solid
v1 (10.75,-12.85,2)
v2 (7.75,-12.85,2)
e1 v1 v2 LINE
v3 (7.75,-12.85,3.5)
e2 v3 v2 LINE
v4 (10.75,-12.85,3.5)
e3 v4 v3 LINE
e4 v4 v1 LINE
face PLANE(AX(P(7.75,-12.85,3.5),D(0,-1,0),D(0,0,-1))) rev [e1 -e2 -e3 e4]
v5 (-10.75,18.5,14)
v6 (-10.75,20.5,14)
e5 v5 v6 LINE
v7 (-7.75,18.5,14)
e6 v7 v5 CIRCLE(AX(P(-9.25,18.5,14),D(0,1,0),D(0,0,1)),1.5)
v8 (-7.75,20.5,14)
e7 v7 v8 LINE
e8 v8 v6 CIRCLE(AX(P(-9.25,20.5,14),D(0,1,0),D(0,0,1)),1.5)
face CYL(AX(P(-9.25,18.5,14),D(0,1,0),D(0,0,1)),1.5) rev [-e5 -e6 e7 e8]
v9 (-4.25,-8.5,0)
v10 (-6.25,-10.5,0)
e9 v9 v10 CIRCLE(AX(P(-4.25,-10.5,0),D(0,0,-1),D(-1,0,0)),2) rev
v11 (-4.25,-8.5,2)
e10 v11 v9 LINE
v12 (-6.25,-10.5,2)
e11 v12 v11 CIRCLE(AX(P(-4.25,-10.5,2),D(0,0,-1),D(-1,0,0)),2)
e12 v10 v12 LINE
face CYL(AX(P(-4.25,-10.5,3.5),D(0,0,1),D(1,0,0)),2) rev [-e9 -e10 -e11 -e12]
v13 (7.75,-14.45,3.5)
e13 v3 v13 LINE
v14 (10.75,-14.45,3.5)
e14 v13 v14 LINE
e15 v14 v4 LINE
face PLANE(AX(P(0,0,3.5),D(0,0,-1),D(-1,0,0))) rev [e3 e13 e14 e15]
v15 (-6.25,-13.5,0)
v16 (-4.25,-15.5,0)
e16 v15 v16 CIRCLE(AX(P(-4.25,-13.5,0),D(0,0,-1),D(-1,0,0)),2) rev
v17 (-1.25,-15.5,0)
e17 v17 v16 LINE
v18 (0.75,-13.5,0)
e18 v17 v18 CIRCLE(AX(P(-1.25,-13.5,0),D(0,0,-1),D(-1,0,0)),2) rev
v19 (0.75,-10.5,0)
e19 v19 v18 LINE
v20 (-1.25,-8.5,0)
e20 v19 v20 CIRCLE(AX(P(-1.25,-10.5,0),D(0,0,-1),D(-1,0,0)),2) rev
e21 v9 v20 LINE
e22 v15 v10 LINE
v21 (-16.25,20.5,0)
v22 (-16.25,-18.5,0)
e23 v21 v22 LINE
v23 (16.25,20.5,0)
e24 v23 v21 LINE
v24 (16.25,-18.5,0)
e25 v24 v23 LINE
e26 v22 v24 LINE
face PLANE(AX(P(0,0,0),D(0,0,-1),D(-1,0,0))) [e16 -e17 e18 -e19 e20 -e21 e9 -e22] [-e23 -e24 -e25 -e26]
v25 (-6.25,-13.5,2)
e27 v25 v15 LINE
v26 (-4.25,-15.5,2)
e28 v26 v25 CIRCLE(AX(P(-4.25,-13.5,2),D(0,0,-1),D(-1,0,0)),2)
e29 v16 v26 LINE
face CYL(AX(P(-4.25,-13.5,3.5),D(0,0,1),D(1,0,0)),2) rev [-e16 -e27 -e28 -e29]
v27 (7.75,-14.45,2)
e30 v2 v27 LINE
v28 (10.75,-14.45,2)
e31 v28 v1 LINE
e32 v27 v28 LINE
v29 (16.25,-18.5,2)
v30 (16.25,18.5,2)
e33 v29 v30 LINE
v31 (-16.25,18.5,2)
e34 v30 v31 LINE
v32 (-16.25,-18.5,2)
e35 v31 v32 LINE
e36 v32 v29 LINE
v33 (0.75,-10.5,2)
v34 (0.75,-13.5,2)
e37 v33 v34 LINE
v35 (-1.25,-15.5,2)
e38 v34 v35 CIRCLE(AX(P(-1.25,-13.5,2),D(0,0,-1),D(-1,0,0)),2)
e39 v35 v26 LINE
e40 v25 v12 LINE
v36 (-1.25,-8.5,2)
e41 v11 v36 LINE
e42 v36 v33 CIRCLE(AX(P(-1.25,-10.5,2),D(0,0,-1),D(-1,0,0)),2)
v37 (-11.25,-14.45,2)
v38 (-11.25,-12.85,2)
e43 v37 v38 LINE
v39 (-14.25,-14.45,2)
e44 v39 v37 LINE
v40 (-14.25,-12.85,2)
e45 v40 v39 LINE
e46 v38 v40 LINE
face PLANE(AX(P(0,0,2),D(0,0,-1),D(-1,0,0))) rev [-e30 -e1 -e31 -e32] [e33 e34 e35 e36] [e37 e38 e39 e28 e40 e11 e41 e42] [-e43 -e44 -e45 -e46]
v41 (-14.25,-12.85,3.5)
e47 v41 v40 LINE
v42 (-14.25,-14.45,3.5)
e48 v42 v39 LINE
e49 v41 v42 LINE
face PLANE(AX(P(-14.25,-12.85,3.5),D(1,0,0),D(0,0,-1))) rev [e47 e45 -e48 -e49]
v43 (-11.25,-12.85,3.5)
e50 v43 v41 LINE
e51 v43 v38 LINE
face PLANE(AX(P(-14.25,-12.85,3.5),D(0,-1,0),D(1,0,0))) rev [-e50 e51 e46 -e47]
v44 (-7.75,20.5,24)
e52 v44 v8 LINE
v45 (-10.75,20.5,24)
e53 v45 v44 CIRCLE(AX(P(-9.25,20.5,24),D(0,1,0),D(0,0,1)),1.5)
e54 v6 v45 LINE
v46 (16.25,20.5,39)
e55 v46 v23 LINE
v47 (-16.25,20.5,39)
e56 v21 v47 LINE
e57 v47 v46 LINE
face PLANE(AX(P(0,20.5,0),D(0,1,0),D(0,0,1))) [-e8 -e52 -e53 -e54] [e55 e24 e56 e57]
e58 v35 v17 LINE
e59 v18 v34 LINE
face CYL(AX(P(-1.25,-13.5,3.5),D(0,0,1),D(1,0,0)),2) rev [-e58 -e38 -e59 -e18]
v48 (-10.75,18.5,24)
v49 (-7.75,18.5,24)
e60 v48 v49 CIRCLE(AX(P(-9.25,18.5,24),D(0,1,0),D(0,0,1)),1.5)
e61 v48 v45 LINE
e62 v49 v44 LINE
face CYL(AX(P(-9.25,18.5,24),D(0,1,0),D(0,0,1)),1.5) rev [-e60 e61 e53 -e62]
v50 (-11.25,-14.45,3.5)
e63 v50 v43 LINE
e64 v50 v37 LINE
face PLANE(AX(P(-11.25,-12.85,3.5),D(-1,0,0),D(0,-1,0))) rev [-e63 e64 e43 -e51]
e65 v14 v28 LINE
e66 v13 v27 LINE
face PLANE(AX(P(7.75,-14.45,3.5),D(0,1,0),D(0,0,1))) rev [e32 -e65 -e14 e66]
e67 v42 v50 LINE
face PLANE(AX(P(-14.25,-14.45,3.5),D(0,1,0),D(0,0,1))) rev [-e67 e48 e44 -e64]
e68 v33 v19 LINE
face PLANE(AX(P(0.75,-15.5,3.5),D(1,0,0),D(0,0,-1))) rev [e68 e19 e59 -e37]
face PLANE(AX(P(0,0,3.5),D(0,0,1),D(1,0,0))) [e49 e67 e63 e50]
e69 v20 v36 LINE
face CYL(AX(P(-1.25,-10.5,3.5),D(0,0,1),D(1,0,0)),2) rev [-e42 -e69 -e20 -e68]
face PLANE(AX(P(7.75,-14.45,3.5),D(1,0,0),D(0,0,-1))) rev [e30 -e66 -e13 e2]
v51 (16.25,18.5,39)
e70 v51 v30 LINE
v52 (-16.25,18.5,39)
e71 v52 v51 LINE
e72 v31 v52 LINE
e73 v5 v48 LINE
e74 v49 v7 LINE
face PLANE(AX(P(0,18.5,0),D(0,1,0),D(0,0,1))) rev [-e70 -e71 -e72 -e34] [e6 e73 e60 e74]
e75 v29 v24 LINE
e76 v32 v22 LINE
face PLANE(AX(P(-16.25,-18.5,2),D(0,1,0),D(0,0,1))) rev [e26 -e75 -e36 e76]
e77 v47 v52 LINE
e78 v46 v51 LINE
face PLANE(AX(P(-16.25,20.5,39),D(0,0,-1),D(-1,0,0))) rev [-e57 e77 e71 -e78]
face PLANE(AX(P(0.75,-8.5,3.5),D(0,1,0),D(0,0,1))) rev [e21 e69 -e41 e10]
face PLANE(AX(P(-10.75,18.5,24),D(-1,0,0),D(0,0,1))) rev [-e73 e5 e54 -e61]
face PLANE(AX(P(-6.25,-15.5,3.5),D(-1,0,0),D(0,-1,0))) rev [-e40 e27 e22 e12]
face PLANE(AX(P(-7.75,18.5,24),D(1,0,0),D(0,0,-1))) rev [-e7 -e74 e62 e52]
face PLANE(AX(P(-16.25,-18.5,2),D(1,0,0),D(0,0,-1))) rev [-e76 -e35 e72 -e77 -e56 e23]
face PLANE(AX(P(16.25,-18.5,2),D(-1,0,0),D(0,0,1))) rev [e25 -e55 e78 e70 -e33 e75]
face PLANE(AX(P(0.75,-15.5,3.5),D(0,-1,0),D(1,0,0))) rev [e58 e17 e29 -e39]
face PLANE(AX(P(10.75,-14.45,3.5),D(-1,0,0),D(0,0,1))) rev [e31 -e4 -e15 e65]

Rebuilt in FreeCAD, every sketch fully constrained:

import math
import FreeCAD as App
import Part
import Sketcher
from FreeCAD import Vector


def edges_at(feature, points):
    """Names of the edges that pass closest to the given points."""
    edges = feature.Shape.Edges
    near = lambda p: min(range(len(edges)), key=lambda i: edges[i].distToShape(Part.Vertex(*p))[0])
    return sorted({f"Edge{near(p) + 1}" for p in points})


def add_polygon(sketch, points):
    """Adds a closed chain of lines whose ends are joined by coincident constraints."""
    first, n = sketch.GeometryCount, len(points)
    for a, b in zip(points, points[1:] + points[:1]):
        sketch.addGeometry(Part.LineSegment(App.Vector(*a, 0), App.Vector(*b, 0)), False)
    for i in range(n):
        sketch.addConstraint(Sketcher.Constraint("Coincident", first + i, 2, first + (i + 1) % n, 1))

doc = App.newDocument("Part")
body = doc.addObject("PartDesign::Body", "Body")

sketch1 = body.newObject("Sketcher::SketchObject", "Sketch")
sketch1.AttachmentSupport = (doc.getObject("XY_Plane"), [""])
sketch1.MapMode = "FlatFace"
add_polygon(sketch1, [(-16, 18), (-16, -18), (16, -18), (16, 18)])
sketch1.addConstraint(Sketcher.Constraint("Vertical", 0))
sketch1.addConstraint(Sketcher.Constraint("Horizontal", 1))
sketch1.addConstraint(Sketcher.Constraint("Vertical", 2))
sketch1.addConstraint(Sketcher.Constraint("Horizontal", 3))
sketch1.addConstraint(Sketcher.Constraint("Symmetric", 0, 2, 2, 2, -1, 1))
sketch1.addConstraint(Sketcher.Constraint("DistanceY", 0, 2, 0, 1, 37.0))
sketch1.addConstraint(Sketcher.Constraint("DistanceX", 1, 1, 1, 2, 32.5))
pad1 = body.newObject("PartDesign::Pad", "Pad")
pad1.Profile = sketch1
pad1.Length = 2

sketch2 = body.newObject("Sketcher::SketchObject", "Sketch001")
sketch2.AttachmentSupport = (doc.getObject("XY_Plane"), [""])
sketch2.MapMode = "FlatFace"
sketch2.AttachmentOffset = App.Placement(Vector(0, 0, 2), App.Rotation())
add_polygon(sketch2, [(-14.2, -12.8), (-14.2, -14.4), (-11.2, -14.4), (-11.2, -12.8)])
add_polygon(sketch2, [(7.8, -12.8), (7.8, -14.4), (10.8, -14.4), (10.8, -12.8)])
sketch2.addConstraint(Sketcher.Constraint("Vertical", 0))
sketch2.addConstraint(Sketcher.Constraint("Horizontal", 1))
sketch2.addConstraint(Sketcher.Constraint("Vertical", 2))
sketch2.addConstraint(Sketcher.Constraint("Horizontal", 3))
sketch2.addConstraint(Sketcher.Constraint("Vertical", 4))
sketch2.addConstraint(Sketcher.Constraint("Horizontal", 5))
sketch2.addConstraint(Sketcher.Constraint("Vertical", 6))
sketch2.addConstraint(Sketcher.Constraint("Horizontal", 7))
sketch2.addConstraint(Sketcher.Constraint("Horizontal", 1, 2, 4, 2))
sketch2.addConstraint(Sketcher.Constraint("Horizontal", 3, 2, 6, 2))
sketch2.addConstraint(Sketcher.Constraint("Equal", 3, 5))
sketch2.addConstraint(Sketcher.Constraint("DistanceX", 1, 1, 1, 2, 3.0))
sketch2.addConstraint(Sketcher.Constraint("DistanceY", 0, 2, 0, 1, 1.6))
sketch2.addConstraint(Sketcher.Constraint("DistanceX", 1, 2, 4, 2, 19.0))
sketch2.addConstraint(Sketcher.Constraint("DistanceX", 0, 2, -1, 1, 14.25))
sketch2.addConstraint(Sketcher.Constraint("DistanceY", 0, 2, -1, 1, 14.45))
pad2 = body.newObject("PartDesign::Pad", "Pad001")
pad2.Profile = sketch2
pad2.Length = 1.5

sketch3 = body.newObject("Sketcher::SketchObject", "Sketch002")
sketch3.AttachmentSupport = (doc.getObject("XY_Plane"), [""])
sketch3.MapMode = "FlatFace"
add_polygon(sketch3, [(1, -8), (1, -16), (-6, -16), (-6, -8)])
sketch3.addConstraint(Sketcher.Constraint("Vertical", 0))
sketch3.addConstraint(Sketcher.Constraint("Horizontal", 1))
sketch3.addConstraint(Sketcher.Constraint("Vertical", 2))
sketch3.addConstraint(Sketcher.Constraint("Horizontal", 3))
sketch3.addConstraint(Sketcher.Constraint("Equal", 3, 0))
sketch3.addConstraint(Sketcher.Constraint("DistanceX", 1, 2, 1, 1, 7.0))
sketch3.addConstraint(Sketcher.Constraint("DistanceY", 0, 2, -1, 1, 15.5))
sketch3.addConstraint(Sketcher.Constraint("DistanceX", -1, 1, 0, 2, 0.75))
pocket1 = body.newObject("PartDesign::Pocket", "Pocket")
pocket1.Profile = sketch3
pocket1.Type = "ThroughAll"
pocket1.Reversed = True
doc.recompute()

fillet = body.newObject("PartDesign::Fillet", "Fillet")
fillet.Base = (pocket1, edges_at(pocket1, [
    (0.75, -15.5, 1),
    (0.75, -8.5, 1),
    (-6.25, -8.5, 1),
    (-6.25, -15.5, 1),
]))
fillet.Radius = 2

sketch4 = body.newObject("Sketcher::SketchObject", "Sketch003")
sketch4.AttachmentSupport = (doc.getObject("XZ_Plane"), [""])
sketch4.MapMode = "FlatFace"
sketch4.AttachmentOffset = App.Placement(Vector(0, 0, -18.5), App.Rotation())
add_polygon(sketch4, [(-16, 0), (-16, 39), (16, 39), (16, 0)])
sketch4.addConstraint(Sketcher.Constraint("Vertical", 0))
sketch4.addConstraint(Sketcher.Constraint("Horizontal", 1))
sketch4.addConstraint(Sketcher.Constraint("Vertical", 2))
sketch4.addConstraint(Sketcher.Constraint("Horizontal", 3))
sketch4.addConstraint(Sketcher.Constraint("Symmetric", 2, 2, 3, 2, -1, 1))
sketch4.addConstraint(Sketcher.Constraint("DistanceY", 0, 1, 0, 2, 39.0))
sketch4.addConstraint(Sketcher.Constraint("DistanceX", 1, 1, 1, 2, 32.5))
pad3 = body.newObject("PartDesign::Pad", "Pad002")
pad3.Profile = sketch4
pad3.Length = 2
pad3.Reversed = True

sketch5 = body.newObject("Sketcher::SketchObject", "Sketch004")
sketch5.AttachmentSupport = (doc.getObject("XZ_Plane"), [""])
sketch5.MapMode = "FlatFace"
sketch5.AttachmentOffset = App.Placement(Vector(0, 0, -20.5), App.Rotation())
sketch5.addGeometry(Part.LineSegment(Vector(-10.8, 14, 0), Vector(-10.8, 24, 0)), False)
sketch5.addGeometry(Part.ArcOfCircle(Part.Circle(Vector(-9.2, 24, 0), Vector(0, 0, 1), 1.5), math.radians(0), math.radians(180)), False)
sketch5.addGeometry(Part.LineSegment(Vector(-7.8, 24, 0), Vector(-7.8, 14, 0)), False)
sketch5.addGeometry(Part.ArcOfCircle(Part.Circle(Vector(-9.2, 14, 0), Vector(0, 0, 1), 1.5), math.radians(180), math.radians(360)), False)
sketch5.addConstraint(Sketcher.Constraint("Tangent", 0, 2, 1, 2))
sketch5.addConstraint(Sketcher.Constraint("Tangent", 1, 1, 2, 1))
sketch5.addConstraint(Sketcher.Constraint("Tangent", 2, 2, 3, 2))
sketch5.addConstraint(Sketcher.Constraint("Tangent", 3, 1, 0, 1))
sketch5.addConstraint(Sketcher.Constraint("Vertical", 0))
sketch5.addConstraint(Sketcher.Constraint("Vertical", 2))
sketch5.addConstraint(Sketcher.Constraint("Radius", 1, 1.5))
sketch5.addConstraint(Sketcher.Constraint("DistanceY", 0, 1, 0, 2, 10.0))
sketch5.addConstraint(Sketcher.Constraint("DistanceY", -1, 1, 1, 3, 24.0))
sketch5.addConstraint(Sketcher.Constraint("DistanceX", 1, 3, -1, 1, 9.25))
pocket2 = body.newObject("PartDesign::Pocket", "Pocket001")
pocket2.Profile = sketch5
pocket2.Length = 2
pocket2.Reversed = True

doc.recompute()
